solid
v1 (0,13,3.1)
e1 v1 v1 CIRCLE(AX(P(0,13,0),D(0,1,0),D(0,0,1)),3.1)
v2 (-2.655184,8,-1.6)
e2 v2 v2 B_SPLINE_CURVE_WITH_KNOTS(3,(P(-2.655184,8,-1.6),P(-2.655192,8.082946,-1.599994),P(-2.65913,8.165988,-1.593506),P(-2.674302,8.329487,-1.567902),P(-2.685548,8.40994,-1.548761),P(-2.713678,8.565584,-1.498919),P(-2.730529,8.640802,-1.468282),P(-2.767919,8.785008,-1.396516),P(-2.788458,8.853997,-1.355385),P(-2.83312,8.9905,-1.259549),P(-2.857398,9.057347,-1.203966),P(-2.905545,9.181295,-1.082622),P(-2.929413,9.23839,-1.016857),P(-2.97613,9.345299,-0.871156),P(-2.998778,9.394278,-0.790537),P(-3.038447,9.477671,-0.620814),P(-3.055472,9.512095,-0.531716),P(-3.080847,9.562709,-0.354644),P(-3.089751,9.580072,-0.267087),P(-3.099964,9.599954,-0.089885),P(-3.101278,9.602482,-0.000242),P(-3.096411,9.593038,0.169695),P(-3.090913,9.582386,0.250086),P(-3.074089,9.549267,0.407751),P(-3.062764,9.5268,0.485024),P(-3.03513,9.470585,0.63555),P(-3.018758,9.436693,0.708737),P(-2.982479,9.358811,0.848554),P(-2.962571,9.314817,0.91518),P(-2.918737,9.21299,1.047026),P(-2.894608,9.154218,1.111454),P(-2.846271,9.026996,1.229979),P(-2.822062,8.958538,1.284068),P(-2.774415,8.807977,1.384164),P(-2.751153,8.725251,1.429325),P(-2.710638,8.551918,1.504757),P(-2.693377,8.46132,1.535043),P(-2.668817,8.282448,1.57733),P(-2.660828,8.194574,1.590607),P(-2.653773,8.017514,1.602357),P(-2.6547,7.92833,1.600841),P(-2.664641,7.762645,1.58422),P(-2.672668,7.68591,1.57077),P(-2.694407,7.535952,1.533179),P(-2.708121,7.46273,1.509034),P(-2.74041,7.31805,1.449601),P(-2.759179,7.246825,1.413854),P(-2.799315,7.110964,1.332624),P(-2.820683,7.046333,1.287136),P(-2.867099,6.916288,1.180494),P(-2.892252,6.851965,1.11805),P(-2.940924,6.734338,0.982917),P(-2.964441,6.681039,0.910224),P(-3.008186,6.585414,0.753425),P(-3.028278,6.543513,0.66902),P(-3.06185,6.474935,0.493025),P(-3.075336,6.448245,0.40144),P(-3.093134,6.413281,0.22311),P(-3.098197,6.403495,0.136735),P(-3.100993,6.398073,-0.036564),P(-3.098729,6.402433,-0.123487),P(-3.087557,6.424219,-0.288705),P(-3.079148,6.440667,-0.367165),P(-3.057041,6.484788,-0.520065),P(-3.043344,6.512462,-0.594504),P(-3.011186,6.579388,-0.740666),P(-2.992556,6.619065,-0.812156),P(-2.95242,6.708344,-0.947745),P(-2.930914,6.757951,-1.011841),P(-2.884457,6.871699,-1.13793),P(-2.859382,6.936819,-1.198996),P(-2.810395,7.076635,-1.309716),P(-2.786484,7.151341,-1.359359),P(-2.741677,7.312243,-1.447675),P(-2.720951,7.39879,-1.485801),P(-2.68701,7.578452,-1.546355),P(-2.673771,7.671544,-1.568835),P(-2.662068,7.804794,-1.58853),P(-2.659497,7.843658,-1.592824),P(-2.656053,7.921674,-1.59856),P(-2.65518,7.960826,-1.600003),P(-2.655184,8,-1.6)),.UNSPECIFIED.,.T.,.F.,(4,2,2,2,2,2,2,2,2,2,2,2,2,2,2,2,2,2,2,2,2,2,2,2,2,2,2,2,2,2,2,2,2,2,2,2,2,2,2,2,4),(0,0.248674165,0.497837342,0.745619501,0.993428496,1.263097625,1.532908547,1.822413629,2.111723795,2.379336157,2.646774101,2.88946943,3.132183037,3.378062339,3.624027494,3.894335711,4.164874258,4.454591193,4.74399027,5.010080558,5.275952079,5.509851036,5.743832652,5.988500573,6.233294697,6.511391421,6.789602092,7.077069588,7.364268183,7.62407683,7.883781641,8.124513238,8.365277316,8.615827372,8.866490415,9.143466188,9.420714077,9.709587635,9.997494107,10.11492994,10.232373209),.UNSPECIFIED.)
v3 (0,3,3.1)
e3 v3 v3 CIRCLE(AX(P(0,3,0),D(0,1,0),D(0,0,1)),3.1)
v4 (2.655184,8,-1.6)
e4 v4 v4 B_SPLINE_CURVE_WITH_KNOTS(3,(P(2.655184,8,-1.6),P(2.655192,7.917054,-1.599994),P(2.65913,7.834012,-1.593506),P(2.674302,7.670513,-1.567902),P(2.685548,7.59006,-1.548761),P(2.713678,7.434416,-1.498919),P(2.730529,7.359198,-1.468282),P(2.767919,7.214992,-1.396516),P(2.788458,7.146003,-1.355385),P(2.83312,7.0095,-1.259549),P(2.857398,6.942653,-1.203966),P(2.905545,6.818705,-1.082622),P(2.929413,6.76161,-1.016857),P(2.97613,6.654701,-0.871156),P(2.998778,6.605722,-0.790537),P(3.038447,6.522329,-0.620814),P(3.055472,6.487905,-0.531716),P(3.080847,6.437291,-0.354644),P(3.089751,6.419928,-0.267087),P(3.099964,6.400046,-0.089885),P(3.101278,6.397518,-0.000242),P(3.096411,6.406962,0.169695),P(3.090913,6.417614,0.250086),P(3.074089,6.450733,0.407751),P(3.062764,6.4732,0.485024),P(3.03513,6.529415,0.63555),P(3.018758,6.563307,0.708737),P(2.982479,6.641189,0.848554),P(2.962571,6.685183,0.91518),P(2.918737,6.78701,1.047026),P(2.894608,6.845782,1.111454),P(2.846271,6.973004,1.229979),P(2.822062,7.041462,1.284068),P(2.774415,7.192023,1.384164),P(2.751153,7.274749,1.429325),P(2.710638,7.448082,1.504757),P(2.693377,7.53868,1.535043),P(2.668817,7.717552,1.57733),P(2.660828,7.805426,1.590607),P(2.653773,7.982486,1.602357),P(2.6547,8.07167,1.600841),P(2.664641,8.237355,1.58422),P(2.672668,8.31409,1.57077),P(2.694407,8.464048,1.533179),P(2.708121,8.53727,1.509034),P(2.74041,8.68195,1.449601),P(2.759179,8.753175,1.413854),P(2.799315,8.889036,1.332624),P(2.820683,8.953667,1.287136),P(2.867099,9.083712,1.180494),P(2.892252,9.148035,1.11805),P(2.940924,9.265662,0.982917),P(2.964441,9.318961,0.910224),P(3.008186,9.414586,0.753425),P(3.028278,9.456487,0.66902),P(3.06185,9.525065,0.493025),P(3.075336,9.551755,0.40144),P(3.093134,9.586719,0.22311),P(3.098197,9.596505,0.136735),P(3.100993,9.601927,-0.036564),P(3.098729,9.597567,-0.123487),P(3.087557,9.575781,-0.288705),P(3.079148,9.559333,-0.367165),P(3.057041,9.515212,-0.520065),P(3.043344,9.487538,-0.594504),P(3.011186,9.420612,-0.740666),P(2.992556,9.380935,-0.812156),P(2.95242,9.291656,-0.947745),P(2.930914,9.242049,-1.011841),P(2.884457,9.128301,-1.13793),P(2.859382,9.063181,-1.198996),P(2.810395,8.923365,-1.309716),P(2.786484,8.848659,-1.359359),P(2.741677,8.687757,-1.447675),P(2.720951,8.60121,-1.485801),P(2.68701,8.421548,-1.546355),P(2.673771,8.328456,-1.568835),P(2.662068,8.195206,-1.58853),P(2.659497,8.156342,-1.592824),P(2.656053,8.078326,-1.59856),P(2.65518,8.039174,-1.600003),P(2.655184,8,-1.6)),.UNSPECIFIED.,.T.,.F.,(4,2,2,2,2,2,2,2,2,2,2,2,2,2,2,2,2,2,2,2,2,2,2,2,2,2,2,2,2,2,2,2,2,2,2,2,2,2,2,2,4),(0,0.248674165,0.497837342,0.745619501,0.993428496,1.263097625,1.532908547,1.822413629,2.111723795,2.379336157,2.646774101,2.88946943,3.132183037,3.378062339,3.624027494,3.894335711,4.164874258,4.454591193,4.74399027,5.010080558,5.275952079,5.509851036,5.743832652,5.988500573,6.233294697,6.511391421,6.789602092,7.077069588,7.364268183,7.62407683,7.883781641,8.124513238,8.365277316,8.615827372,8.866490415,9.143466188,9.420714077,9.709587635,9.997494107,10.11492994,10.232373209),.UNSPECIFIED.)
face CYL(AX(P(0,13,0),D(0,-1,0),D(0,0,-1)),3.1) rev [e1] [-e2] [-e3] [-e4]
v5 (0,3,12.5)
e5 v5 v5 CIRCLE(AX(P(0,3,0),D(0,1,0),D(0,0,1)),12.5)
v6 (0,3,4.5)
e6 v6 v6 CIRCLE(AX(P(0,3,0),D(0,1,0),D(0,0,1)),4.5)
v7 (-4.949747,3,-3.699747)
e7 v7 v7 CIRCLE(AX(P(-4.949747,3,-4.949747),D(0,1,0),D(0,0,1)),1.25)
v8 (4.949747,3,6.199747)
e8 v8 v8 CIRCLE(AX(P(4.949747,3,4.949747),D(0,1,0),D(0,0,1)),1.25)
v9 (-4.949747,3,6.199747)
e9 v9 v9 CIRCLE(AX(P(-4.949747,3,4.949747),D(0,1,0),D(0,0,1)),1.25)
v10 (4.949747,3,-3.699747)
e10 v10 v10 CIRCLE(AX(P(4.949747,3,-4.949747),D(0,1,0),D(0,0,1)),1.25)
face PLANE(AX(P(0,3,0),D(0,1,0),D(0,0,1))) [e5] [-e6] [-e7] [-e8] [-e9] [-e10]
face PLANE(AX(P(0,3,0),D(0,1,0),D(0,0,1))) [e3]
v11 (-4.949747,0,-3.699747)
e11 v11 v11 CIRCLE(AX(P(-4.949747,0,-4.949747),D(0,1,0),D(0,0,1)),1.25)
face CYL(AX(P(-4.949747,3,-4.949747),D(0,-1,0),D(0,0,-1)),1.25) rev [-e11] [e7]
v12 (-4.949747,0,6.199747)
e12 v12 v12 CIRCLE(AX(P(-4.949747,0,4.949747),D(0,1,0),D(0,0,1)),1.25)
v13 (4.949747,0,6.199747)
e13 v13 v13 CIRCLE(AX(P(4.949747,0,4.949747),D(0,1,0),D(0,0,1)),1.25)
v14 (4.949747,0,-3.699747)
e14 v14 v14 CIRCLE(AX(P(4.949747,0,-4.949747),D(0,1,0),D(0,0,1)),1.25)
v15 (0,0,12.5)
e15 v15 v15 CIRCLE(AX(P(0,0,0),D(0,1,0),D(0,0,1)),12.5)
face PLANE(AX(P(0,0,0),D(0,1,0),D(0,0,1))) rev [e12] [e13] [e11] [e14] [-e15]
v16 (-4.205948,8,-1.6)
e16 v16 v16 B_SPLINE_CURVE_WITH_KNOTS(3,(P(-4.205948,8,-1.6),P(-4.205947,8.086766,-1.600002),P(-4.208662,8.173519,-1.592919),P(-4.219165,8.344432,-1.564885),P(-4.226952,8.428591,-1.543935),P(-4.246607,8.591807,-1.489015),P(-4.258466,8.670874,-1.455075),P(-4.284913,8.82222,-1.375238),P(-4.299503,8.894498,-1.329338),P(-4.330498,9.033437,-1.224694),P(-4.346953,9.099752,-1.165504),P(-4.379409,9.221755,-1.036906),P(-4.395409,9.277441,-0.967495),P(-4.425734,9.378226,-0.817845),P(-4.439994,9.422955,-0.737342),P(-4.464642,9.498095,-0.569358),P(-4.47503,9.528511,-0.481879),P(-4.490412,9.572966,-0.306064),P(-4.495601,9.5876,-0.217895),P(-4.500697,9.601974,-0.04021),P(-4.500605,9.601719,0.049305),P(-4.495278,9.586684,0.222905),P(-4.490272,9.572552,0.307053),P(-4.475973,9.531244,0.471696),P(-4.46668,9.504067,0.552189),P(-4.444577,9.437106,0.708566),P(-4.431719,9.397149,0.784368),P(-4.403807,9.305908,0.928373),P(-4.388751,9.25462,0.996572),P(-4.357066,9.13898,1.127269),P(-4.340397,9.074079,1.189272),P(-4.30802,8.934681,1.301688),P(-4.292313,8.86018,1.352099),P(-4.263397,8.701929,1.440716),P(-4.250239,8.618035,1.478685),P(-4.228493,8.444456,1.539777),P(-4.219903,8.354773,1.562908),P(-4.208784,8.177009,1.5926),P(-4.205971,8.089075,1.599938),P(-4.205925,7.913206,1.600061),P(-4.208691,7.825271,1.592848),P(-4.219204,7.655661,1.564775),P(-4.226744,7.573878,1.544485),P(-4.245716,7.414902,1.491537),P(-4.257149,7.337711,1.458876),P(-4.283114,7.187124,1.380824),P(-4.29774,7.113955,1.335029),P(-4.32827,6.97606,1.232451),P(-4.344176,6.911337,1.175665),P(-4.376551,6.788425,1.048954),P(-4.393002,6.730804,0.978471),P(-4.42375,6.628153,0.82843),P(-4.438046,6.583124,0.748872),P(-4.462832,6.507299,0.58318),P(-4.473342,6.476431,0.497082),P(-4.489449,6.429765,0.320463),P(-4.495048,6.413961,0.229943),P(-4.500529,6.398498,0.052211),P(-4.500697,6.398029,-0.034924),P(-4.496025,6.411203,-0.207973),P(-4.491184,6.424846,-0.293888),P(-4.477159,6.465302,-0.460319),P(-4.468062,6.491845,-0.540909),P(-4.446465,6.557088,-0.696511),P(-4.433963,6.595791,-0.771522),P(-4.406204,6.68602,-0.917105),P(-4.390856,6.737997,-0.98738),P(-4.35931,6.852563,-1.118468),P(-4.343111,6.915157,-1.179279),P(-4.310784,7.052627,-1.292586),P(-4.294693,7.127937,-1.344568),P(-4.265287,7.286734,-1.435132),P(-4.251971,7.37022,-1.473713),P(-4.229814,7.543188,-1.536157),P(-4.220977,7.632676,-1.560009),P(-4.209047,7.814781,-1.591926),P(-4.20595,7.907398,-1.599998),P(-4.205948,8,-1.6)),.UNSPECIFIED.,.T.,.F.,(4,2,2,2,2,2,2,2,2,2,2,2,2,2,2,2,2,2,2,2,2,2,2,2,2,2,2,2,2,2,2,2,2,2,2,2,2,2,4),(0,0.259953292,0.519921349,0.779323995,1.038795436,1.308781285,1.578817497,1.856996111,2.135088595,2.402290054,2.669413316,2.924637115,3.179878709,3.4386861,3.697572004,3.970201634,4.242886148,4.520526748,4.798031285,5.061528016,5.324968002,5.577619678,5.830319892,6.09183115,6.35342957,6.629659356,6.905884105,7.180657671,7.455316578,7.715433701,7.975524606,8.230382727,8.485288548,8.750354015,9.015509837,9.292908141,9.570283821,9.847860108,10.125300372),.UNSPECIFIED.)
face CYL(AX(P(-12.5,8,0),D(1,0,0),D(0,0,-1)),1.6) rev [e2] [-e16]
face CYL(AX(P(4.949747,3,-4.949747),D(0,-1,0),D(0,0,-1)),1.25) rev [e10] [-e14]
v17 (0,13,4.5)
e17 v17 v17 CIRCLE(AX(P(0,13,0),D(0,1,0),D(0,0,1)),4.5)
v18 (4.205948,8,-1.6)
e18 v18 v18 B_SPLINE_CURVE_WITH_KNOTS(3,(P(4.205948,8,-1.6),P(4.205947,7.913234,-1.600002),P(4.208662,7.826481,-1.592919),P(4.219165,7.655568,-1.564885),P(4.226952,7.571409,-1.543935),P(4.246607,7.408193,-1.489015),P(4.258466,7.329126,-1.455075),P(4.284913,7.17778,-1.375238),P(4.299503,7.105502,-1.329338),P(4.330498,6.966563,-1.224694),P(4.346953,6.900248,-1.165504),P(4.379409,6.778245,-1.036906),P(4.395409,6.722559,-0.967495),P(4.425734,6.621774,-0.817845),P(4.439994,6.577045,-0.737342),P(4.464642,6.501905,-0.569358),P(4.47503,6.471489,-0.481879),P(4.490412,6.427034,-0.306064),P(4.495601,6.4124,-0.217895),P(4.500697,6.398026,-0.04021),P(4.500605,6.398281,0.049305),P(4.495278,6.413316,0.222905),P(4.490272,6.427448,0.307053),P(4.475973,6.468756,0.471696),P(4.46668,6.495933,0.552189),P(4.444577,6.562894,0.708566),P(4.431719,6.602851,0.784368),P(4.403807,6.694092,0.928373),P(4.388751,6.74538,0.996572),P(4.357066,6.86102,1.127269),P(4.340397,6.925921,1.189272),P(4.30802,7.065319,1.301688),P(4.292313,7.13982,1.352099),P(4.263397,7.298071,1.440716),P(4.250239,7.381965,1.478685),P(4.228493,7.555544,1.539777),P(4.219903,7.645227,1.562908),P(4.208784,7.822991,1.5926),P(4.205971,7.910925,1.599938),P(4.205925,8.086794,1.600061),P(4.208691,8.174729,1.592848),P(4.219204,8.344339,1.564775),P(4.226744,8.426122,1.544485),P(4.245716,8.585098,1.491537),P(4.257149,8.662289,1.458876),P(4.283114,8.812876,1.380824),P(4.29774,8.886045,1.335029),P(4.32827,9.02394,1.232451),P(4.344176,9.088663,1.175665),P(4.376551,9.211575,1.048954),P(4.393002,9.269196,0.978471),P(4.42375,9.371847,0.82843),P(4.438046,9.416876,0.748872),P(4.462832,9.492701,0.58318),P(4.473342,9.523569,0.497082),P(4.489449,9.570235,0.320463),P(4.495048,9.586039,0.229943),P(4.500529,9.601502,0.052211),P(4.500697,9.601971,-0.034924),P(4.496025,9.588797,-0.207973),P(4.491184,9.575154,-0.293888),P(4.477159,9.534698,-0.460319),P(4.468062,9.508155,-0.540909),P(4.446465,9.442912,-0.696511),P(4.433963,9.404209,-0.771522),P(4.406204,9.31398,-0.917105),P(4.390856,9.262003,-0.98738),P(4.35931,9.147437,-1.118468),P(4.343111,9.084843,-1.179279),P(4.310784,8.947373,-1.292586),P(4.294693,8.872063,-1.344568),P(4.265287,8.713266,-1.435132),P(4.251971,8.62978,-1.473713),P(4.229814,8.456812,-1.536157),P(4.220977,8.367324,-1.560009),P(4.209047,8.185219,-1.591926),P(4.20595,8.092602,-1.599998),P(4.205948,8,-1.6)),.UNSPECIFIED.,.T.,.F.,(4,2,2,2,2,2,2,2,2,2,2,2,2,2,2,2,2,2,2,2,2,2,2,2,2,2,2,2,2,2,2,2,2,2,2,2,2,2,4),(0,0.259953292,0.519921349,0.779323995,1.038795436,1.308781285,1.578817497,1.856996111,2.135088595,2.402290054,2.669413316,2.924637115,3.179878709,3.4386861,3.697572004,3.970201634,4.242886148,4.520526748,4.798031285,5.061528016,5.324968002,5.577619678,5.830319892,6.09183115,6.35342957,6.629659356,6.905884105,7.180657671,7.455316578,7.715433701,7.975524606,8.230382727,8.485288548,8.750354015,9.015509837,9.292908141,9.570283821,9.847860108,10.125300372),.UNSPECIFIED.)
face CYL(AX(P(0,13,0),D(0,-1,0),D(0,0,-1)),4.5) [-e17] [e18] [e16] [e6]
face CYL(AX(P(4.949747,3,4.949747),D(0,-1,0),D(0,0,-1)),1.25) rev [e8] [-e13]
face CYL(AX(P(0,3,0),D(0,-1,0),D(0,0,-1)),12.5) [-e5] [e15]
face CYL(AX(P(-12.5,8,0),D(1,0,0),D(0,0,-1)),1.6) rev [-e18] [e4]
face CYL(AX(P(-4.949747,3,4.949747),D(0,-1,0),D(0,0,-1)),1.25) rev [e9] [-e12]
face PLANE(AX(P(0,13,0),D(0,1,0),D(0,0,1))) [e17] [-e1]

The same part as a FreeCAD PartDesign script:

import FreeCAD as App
import Part
import Sketcher
from FreeCAD import Vector

doc = App.newDocument("Part")
body = doc.addObject("PartDesign::Body", "Body")

sketch1 = body.newObject("Sketcher::SketchObject", "Sketch")
sketch1.AttachmentSupport = (doc.getObject("XZ_Plane"), [""])
sketch1.MapMode = "FlatFace"
sketch1.addGeometry(Part.Circle(Vector(0, 0, 0), Vector(0, 0, 1), 12.5), False)
sketch1.addGeometry(Part.Circle(Vector(-4.949747, -4.949747, 0), Vector(0, 0, 1), 1.25), False)
sketch1.addGeometry(Part.Circle(Vector(-4.949747, 4.949747, 0), Vector(0, 0, 1), 1.25), False)
sketch1.addGeometry(Part.Circle(Vector(4.949747, -4.949747, 0), Vector(0, 0, 1), 1.25), False)
sketch1.addGeometry(Part.Circle(Vector(4.949747, 4.949747, 0), Vector(0, 0, 1), 1.25), False)
sketch1.addConstraint(Sketcher.Constraint("Coincident", 0, 3, -1, 1))
sketch1.addConstraint(Sketcher.Constraint("Equal", 1, 2))
sketch1.addConstraint(Sketcher.Constraint("Equal", 2, 3))
sketch1.addConstraint(Sketcher.Constraint("Equal", 3, 4))
sketch1.addConstraint(Sketcher.Constraint("Symmetric", 2, 3, 3, 3, -1, 1))
sketch1.addConstraint(Sketcher.Constraint("Symmetric", 1, 3, 4, 3, -1, 1))
sketch1.addConstraint(Sketcher.Constraint("Symmetric", 1, 3, 3, 3, -2))
sketch1.addConstraint(Sketcher.Constraint("Diameter", 0, 25.0))
sketch1.addConstraint(Sketcher.Constraint("Diameter", 1, 2.5))
sketch1.addConstraint(Sketcher.Constraint("DistanceX", 1, 3, -1, 1, 4.949747))
sketch1.addConstraint(Sketcher.Constraint("DistanceY", 1, 3, -1, 1, 4.949747))
pad1 = body.newObject("PartDesign::Pad", "Pad")
pad1.Profile = sketch1
pad1.Length = 3
pad1.Reversed = True

sketch2 = body.newObject("Sketcher::SketchObject", "Sketch001")
sketch2.AttachmentSupport = (doc.getObject("XZ_Plane"), [""])
sketch2.MapMode = "FlatFace"
sketch2.AttachmentOffset = App.Placement(Vector(0, 0, -3), App.Rotation())
sketch2.addGeometry(Part.Circle(Vector(0, 0, 0), Vector(0, 0, 1), 4.5), False)
sketch2.addGeometry(Part.Circle(Vector(0, 0, 0), Vector(0, 0, 1), 3.1), False)
sketch2.addConstraint(Sketcher.Constraint("Coincident", 0, 3, -1, 1))
sketch2.addConstraint(Sketcher.Constraint("Coincident", 1, 3, -1, 1))
sketch2.addConstraint(Sketcher.Constraint("Diameter", 0, 9.0))
sketch2.addConstraint(Sketcher.Constraint("Diameter", 1, 6.2))
pad2 = body.newObject("PartDesign::Pad", "Pad001")
pad2.Profile = sketch2
pad2.Length = 10
pad2.Reversed = True

sketch3 = body.newObject("Sketcher::SketchObject", "Sketch002")
sketch3.AttachmentSupport = (doc.getObject("YZ_Plane"), [""])
sketch3.MapMode = "FlatFace"
sketch3.addGeometry(Part.Circle(Vector(8, 0, 0), Vector(0, 0, 1), 1.6), False)
sketch3.addConstraint(Sketcher.Constraint("PointOnObject", 0, 3, -1))
sketch3.addConstraint(Sketcher.Constraint("Diameter", 0, 3.2))
sketch3.addConstraint(Sketcher.Constraint("DistanceX", -1, 1, 0, 3, 8.0))
pocket1 = body.newObject("PartDesign::Pocket", "Pocket")
pocket1.Profile = sketch3
pocket1.Type = "ThroughAll"
pocket1.Midplane = True

doc.recompute()
